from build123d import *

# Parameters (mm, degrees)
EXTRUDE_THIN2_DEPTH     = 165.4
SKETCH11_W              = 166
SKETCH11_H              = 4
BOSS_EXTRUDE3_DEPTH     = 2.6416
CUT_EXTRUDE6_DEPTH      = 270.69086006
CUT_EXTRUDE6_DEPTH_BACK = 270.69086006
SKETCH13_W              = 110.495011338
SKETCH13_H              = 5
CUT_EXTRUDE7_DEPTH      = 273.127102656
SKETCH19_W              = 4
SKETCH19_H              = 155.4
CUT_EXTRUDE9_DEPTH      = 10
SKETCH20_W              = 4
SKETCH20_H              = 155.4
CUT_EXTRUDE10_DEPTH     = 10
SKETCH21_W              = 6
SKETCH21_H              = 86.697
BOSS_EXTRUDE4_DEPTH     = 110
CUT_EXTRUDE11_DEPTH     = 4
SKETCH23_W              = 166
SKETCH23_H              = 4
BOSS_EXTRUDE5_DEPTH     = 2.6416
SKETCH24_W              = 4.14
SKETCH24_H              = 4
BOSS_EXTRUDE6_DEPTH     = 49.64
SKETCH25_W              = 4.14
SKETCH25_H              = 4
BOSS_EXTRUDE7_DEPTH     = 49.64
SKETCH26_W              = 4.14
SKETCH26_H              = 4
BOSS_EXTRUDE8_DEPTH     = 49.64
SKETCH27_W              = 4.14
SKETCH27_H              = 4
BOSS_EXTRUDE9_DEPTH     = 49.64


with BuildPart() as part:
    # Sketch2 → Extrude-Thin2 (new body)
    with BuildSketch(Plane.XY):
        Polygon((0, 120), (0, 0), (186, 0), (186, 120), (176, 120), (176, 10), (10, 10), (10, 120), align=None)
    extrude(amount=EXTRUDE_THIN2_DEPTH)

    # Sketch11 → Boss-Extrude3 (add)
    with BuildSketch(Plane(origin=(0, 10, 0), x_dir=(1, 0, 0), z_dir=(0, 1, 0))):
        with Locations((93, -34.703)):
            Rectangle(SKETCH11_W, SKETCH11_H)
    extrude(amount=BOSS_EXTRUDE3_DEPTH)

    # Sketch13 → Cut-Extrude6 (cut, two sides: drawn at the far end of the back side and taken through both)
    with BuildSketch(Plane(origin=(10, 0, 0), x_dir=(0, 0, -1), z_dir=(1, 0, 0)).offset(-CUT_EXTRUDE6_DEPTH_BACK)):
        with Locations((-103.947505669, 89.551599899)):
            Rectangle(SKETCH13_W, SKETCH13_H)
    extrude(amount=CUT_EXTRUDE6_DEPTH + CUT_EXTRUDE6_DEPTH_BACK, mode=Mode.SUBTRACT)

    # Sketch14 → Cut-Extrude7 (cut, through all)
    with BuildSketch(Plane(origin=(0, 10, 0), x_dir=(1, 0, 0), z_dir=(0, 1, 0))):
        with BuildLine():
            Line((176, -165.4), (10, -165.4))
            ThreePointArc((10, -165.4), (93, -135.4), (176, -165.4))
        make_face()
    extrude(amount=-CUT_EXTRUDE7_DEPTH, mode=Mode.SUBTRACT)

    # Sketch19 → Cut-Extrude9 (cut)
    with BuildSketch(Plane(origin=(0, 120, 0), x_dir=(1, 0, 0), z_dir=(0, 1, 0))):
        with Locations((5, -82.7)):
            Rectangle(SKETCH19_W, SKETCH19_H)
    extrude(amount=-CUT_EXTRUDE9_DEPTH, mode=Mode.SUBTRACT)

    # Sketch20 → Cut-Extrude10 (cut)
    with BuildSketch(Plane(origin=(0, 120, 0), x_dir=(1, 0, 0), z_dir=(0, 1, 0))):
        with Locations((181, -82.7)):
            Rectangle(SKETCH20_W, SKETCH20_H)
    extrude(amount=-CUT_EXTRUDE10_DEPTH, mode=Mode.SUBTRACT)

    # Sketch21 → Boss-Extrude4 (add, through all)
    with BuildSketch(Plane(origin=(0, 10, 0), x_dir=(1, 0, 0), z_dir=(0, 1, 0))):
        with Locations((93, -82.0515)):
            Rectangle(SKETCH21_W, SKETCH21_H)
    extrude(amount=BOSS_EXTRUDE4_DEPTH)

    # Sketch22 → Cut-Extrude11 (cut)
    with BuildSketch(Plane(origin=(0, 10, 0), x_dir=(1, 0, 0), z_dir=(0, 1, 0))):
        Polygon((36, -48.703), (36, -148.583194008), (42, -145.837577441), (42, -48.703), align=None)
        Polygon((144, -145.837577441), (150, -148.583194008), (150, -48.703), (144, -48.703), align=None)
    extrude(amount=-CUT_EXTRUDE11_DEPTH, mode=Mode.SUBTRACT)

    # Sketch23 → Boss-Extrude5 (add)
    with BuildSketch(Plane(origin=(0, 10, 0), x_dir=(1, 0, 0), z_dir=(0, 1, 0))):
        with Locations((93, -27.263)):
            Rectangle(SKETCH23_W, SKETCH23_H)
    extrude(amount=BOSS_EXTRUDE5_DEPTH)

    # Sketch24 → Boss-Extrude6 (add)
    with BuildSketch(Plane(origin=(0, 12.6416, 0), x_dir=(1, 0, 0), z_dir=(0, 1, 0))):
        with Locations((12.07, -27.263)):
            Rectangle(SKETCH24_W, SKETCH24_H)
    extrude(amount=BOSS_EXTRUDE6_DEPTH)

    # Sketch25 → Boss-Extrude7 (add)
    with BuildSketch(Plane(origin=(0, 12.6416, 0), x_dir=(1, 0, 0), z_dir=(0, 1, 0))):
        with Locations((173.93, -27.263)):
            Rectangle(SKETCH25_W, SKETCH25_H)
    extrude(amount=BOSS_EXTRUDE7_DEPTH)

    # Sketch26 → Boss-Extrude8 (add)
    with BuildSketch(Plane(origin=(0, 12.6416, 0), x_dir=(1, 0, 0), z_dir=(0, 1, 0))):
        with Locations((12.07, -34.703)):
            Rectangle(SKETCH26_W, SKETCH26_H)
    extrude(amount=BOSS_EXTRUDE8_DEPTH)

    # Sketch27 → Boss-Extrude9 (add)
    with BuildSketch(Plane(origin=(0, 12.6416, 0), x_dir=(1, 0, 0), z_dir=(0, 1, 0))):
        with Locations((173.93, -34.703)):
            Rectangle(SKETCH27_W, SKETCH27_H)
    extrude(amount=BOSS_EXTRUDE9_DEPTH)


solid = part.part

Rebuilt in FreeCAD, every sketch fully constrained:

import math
import FreeCAD as App
import Part
import Sketcher
from FreeCAD import Vector
Q = App.Units.Quantity

doc = App.newDocument("Part")
body = doc.addObject("PartDesign::Body", "Body")

sketch1 = body.newObject("Sketcher::SketchObject", "Sketch")
sketch1.AttachmentSupport = (doc.getObject("XY_Plane"), [""])
sketch1.MapMode = "FlatFace"
sketch1.addGeometry([
    Part.LineSegment(Vector(0, 120, 0), Vector(0, 0, 0)),
    Part.LineSegment(Vector(0, 0, 0), Vector(186, 0, 0)),
    Part.LineSegment(Vector(186, 0, 0), Vector(186, 120, 0)),
    Part.LineSegment(Vector(186, 120, 0), Vector(176, 120, 0)),
    Part.LineSegment(Vector(176, 120, 0), Vector(176, 10, 0)),
    Part.LineSegment(Vector(176, 10, 0), Vector(10, 10, 0)),
    Part.LineSegment(Vector(10, 10, 0), Vector(10, 120, 0)),
    Part.LineSegment(Vector(10, 120, 0), Vector(0, 120, 0)),
], False)
sketch1.addConstraint([
    Sketcher.Constraint("Coincident", 0, 2, 1, 1),
    Sketcher.Constraint("Coincident", 1, 2, 2, 1),
    Sketcher.Constraint("Coincident", 2, 2, 3, 1),
    Sketcher.Constraint("Coincident", 3, 2, 4, 1),
    Sketcher.Constraint("Coincident", 4, 2, 5, 1),
    Sketcher.Constraint("Coincident", 5, 2, 6, 1),
    Sketcher.Constraint("Coincident", 6, 2, 7, 1),
    Sketcher.Constraint("Coincident", 7, 2, 0, 1),
    Sketcher.Constraint("Vertical", 0),
    Sketcher.Constraint("Horizontal", 1),
    Sketcher.Constraint("Vertical", 2),
    Sketcher.Constraint("Horizontal", 3),
    Sketcher.Constraint("Vertical", 4),
    Sketcher.Constraint("Horizontal", 5),
    Sketcher.Constraint("Vertical", 6),
    Sketcher.Constraint("Horizontal", 7),
    Sketcher.Constraint("Coincident", 0, 2, -1, 1),
    Sketcher.Constraint("Horizontal", 3, 2, 6, 2),
    Sketcher.Constraint("Equal", 3, 7),
    Sketcher.Constraint("DistanceX", 1, 1, 1, 2, Q("186 mm")),
    Sketcher.Constraint("DistanceX", 3, 2, 3, 1, Q("10 mm")),
    Sketcher.Constraint("DistanceY", 0, 2, 0, 1, Q("120 mm")),
    Sketcher.Constraint("DistanceY", 4, 2, 4, 1, Q("110 mm")),
])
pad1 = body.newObject("PartDesign::Pad", "Pad")
pad1.Profile = sketch1
pad1.Length = 165.4

sketch2 = body.newObject("Sketcher::SketchObject", "Sketch001")
sketch2.AttachmentSupport = (doc.getObject("XZ_Plane"), [""])
sketch2.MapMode = "FlatFace"
sketch2.AttachmentOffset = App.Placement(Vector(0, 0, -10), App.Rotation())
sketch2.addGeometry([
    Part.LineSegment(Vector(10, 32.7, 0), Vector(10, 36.7, 0)),
    Part.LineSegment(Vector(10, 36.7, 0), Vector(176, 36.7, 0)),
    Part.LineSegment(Vector(176, 36.7, 0), Vector(176, 32.7, 0)),
    Part.LineSegment(Vector(176, 32.7, 0), Vector(10, 32.7, 0)),
], False)
sketch2.addConstraint([
    Sketcher.Constraint("Coincident", 0, 2, 1, 1),
    Sketcher.Constraint("Coincident", 1, 2, 2, 1),
    Sketcher.Constraint("Coincident", 2, 2, 3, 1),
    Sketcher.Constraint("Coincident", 3, 2, 0, 1),
    Sketcher.Constraint("Vertical", 0),
    Sketcher.Constraint("Horizontal", 1),
    Sketcher.Constraint("Vertical", 2),
    Sketcher.Constraint("Horizontal", 3),
    Sketcher.Constraint("DistanceX", 1, 1, 1, 2, Q("166 mm")),
    Sketcher.Constraint("DistanceY", 0, 1, 0, 2, Q("4 mm")),
    Sketcher.Constraint("DistanceX", -1, 1, 0, 2, Q("10 mm")),
    Sketcher.Constraint("DistanceY", -1, 1, 0, 2, Q("36.703 mm")),
])
pad2 = body.newObject("PartDesign::Pad", "Pad001")
pad2.Profile = sketch2
pad2.Length = 2.6416
pad2.Reversed = True

sketch3 = body.newObject("Sketcher::SketchObject", "Sketch002")
sketch3.AttachmentSupport = (doc.getObject("YZ_Plane"), [""])
sketch3.MapMode = "FlatFace"
sketch3.AttachmentOffset = App.Placement(Vector(0, 0, 10), App.Rotation())
sketch3.addGeometry([
    Part.LineSegment(Vector(92, 159, 0), Vector(87, 159, 0)),
    Part.LineSegment(Vector(87, 159, 0), Vector(87, 49, 0)),
    Part.LineSegment(Vector(87, 49, 0), Vector(92, 49, 0)),
    Part.LineSegment(Vector(92, 49, 0), Vector(92, 159, 0)),
], False)
sketch3.addConstraint([
    Sketcher.Constraint("Coincident", 0, 2, 1, 1),
    Sketcher.Constraint("Coincident", 1, 2, 2, 1),
    Sketcher.Constraint("Coincident", 2, 2, 3, 1),
    Sketcher.Constraint("Coincident", 3, 2, 0, 1),
    Sketcher.Constraint("Horizontal", 0),
    Sketcher.Constraint("Vertical", 1),
    Sketcher.Constraint("Horizontal", 2),
    Sketcher.Constraint("Vertical", 3),
    Sketcher.Constraint("DistanceX", 0, 2, 0, 1, Q("5 mm")),
    Sketcher.Constraint("DistanceY", -1, 1, 1, 2, Q("48.7 mm")),
    Sketcher.Constraint("DistanceY", 1, 2, 1, 1, Q("110.495011 mm")),
    Sketcher.Constraint("DistanceX", -1, 1, 0, 2, Q("87.0516 mm")),
])
pocket1 = body.newObject("PartDesign::Pocket", "Pocket")
pocket1.Profile = sketch3
pocket1.Type = "ThroughAll"
pocket1.Midplane = True

sketch4 = body.newObject("Sketcher::SketchObject", "Sketch003")
sketch4.AttachmentSupport = (doc.getObject("XZ_Plane"), [""])
sketch4.MapMode = "FlatFace"
sketch4.AttachmentOffset = App.Placement(Vector(0, 0, -10), App.Rotation())
sketch4.addGeometry([
    Part.LineSegment(Vector(10, 165, 0), Vector(176, 165, 0)),
    Part.ArcOfCircle(Part.Circle(Vector(93, 265, 0), Vector(0, 0, 1), 130), math.radians(-130), math.radians(-50)),
], False)
sketch4.addConstraint([
    Sketcher.Constraint("Coincident", 0, 1, 1, 1),
    Sketcher.Constraint("Coincident", 1, 2, 0, 2),
    Sketcher.Constraint("Horizontal", 0),
    Sketcher.Constraint("DistanceX", 0, 1, 0, 2, Q("166 mm")),
    Sketcher.Constraint("DistanceX", -1, 1, 1, 3, Q("93 mm")),
    Sketcher.Constraint("DistanceY", -1, 1, 0, 1, Q("165.4 mm")),
    Sketcher.Constraint("Radius", 1, Q("129.816667 mm")),
])
pocket2 = body.newObject("PartDesign::Pocket", "Pocket001")
pocket2.Profile = sketch4
pocket2.Type = "ThroughAll"
pocket2.Reversed = True

sketch5 = body.newObject("Sketcher::SketchObject", "Sketch004")
sketch5.AttachmentSupport = (doc.getObject("XZ_Plane"), [""])
sketch5.MapMode = "FlatFace"
sketch5.AttachmentOffset = App.Placement(Vector(0, 0, -120), App.Rotation())
sketch5.addGeometry([
    Part.LineSegment(Vector(3, 5, 0), Vector(3, 160.4, 0)),
    Part.LineSegment(Vector(3, 160.4, 0), Vector(7, 160.4, 0)),
    Part.LineSegment(Vector(7, 160.4, 0), Vector(7, 5, 0)),
    Part.LineSegment(Vector(7, 5, 0), Vector(3, 5, 0)),
], False)
sketch5.addConstraint([
    Sketcher.Constraint("Coincident", 0, 2, 1, 1),
    Sketcher.Constraint("Coincident", 1, 2, 2, 1),
    Sketcher.Constraint("Coincident", 2, 2, 3, 1),
    Sketcher.Constraint("Coincident", 3, 2, 0, 1),
    Sketcher.Constraint("Vertical", 0),
    Sketcher.Constraint("Horizontal", 1),
    Sketcher.Constraint("Vertical", 2),
    Sketcher.Constraint("Horizontal", 3),
    Sketcher.Constraint("DistanceX", 1, 1, 1, 2, Q("4 mm")),
    Sketcher.Constraint("DistanceY", 0, 1, 0, 2, Q("155.4 mm")),
    Sketcher.Constraint("DistanceX", -1, 1, 0, 2, Q("3 mm")),
    Sketcher.Constraint("DistanceY", -1, 1, 2, 2, Q("5 mm")),
])
pocket3 = body.newObject("PartDesign::Pocket", "Pocket002")
pocket3.Profile = sketch5
pocket3.Length = 10
pocket3.Reversed = True

sketch6 = body.newObject("Sketcher::SketchObject", "Sketch005")
sketch6.AttachmentSupport = (doc.getObject("XZ_Plane"), [""])
sketch6.MapMode = "FlatFace"
sketch6.AttachmentOffset = App.Placement(Vector(0, 0, -120), App.Rotation())
sketch6.addGeometry([
    Part.LineSegment(Vector(179, 5, 0), Vector(179, 160.4, 0)),
    Part.LineSegment(Vector(179, 160.4, 0), Vector(183, 160.4, 0)),
    Part.LineSegment(Vector(183, 160.4, 0), Vector(183, 5, 0)),
    Part.LineSegment(Vector(183, 5, 0), Vector(179, 5, 0)),
], False)
sketch6.addConstraint([
    Sketcher.Constraint("Coincident", 0, 2, 1, 1),
    Sketcher.Constraint("Coincident", 1, 2, 2, 1),
    Sketcher.Constraint("Coincident", 2, 2, 3, 1),
    Sketcher.Constraint("Coincident", 3, 2, 0, 1),
    Sketcher.Constraint("Vertical", 0),
    Sketcher.Constraint("Horizontal", 1),
    Sketcher.Constraint("Vertical", 2),
    Sketcher.Constraint("Horizontal", 3),
    Sketcher.Constraint("DistanceX", 1, 1, 1, 2, Q("4 mm")),
    Sketcher.Constraint("DistanceY", 0, 1, 0, 2, Q("155.4 mm")),
    Sketcher.Constraint("DistanceX", -1, 1, 0, 2, Q("179 mm")),
    Sketcher.Constraint("DistanceY", -1, 1, 2, 2, Q("5 mm")),
])
pocket4 = body.newObject("PartDesign::Pocket", "Pocket003")
pocket4.Profile = sketch6
pocket4.Length = 10
pocket4.Reversed = True

sketch7 = body.newObject("Sketcher::SketchObject", "Sketch006")
sketch7.AttachmentSupport = (doc.getObject("XZ_Plane"), [""])
sketch7.MapMode = "FlatFace"
sketch7.AttachmentOffset = App.Placement(Vector(0, 0, -10), App.Rotation())
sketch7.addGeometry([
    Part.LineSegment(Vector(90, 39, 0), Vector(90, 125, 0)),
    Part.LineSegment(Vector(90, 125, 0), Vector(96, 125, 0)),
    Part.LineSegment(Vector(96, 125, 0), Vector(96, 39, 0)),
    Part.LineSegment(Vector(96, 39, 0), Vector(90, 39, 0)),
], False)
sketch7.addConstraint([
    Sketcher.Constraint("Coincident", 0, 2, 1, 1),
    Sketcher.Constraint("Coincident", 1, 2, 2, 1),
    Sketcher.Constraint("Coincident", 2, 2, 3, 1),
    Sketcher.Constraint("Coincident", 3, 2, 0, 1),
    Sketcher.Constraint("Vertical", 0),
    Sketcher.Constraint("Horizontal", 1),
    Sketcher.Constraint("Vertical", 2),
    Sketcher.Constraint("Horizontal", 3),
    Sketcher.Constraint("DistanceX", 1, 1, 1, 2, Q("6 mm")),
    Sketcher.Constraint("DistanceX", -1, 1, 0, 2, Q("90 mm")),
    Sketcher.Constraint("DistanceY", -1, 1, 0, 2, Q("125.4 mm")),
    Sketcher.Constraint("DistanceY", 0, 1, 0, 2, Q("86.697 mm")),
])
pad3 = body.newObject("PartDesign::Pad", "Pad002")
pad3.Profile = sketch7
pad3.Length = 110
pad3.Reversed = True

sketch8 = body.newObject("Sketcher::SketchObject", "Sketch007")
sketch8.AttachmentSupport = (doc.getObject("XZ_Plane"), [""])
sketch8.MapMode = "FlatFace"
sketch8.AttachmentOffset = App.Placement(Vector(0, 0, -10), App.Rotation())
sketch8.addGeometry([
    Part.LineSegment(Vector(36, 49, 0), Vector(36, 149, 0)),
    Part.LineSegment(Vector(36, 149, 0), Vector(42, 146, 0)),
    Part.LineSegment(Vector(42, 146, 0), Vector(42, 49, 0)),
    Part.LineSegment(Vector(42, 49, 0), Vector(36, 49, 0)),
    Part.LineSegment(Vector(144, 146, 0), Vector(150, 149, 0)),
    Part.LineSegment(Vector(150, 149, 0), Vector(150, 49, 0)),
    Part.LineSegment(Vector(150, 49, 0), Vector(144, 49, 0)),
    Part.LineSegment(Vector(144, 49, 0), Vector(144, 146, 0)),
], False)
sketch8.addConstraint([
    Sketcher.Constraint("Coincident", 0, 2, 1, 1),
    Sketcher.Constraint("Coincident", 1, 2, 2, 1),
    Sketcher.Constraint("Coincident", 2, 2, 3, 1),
    Sketcher.Constraint("Coincident", 3, 2, 0, 1),
    Sketcher.Constraint("Coincident", 4, 2, 5, 1),
    Sketcher.Constraint("Coincident", 5, 2, 6, 1),
    Sketcher.Constraint("Coincident", 6, 2, 7, 1),
    Sketcher.Constraint("Coincident", 7, 2, 4, 1),
    Sketcher.Constraint("Vertical", 0),
    Sketcher.Constraint("Vertical", 2),
    Sketcher.Constraint("Horizontal", 3),
    Sketcher.Constraint("Vertical", 5),
    Sketcher.Constraint("Horizontal", 6),
    Sketcher.Constraint("Vertical", 7),
    Sketcher.Constraint("Horizontal", 0, 2, 4, 2),
    Sketcher.Constraint("Horizontal", 3, 2, 5, 2),
    Sketcher.Constraint("Horizontal", 1, 2, 7, 2),
    Sketcher.Constraint("Equal", 3, 6),
    Sketcher.Constraint("DistanceX", 3, 2, 3, 1, Q("6 mm")),
    Sketcher.Constraint("DistanceX", -1, 1, 0, 2, Q("36 mm")),
    Sketcher.Constraint("DistanceX", -1, 1, 4, 2, Q("150 mm")),
    Sketcher.Constraint("DistanceY", -1, 1, 2, 2, Q("48.703 mm")),
    Sketcher.Constraint("DistanceY", 0, 1, 0, 2, Q("99.880194 mm")),
    Sketcher.Constraint("DistanceY", 2, 2, 2, 1, Q("97.134577 mm")),
])
pocket5 = body.newObject("PartDesign::Pocket", "Pocket004")
pocket5.Profile = sketch8
pocket5.Length = 4
pocket5.Reversed = True

sketch9 = body.newObject("Sketcher::SketchObject", "Sketch008")
sketch9.AttachmentSupport = (doc.getObject("XZ_Plane"), [""])
sketch9.MapMode = "FlatFace"
sketch9.AttachmentOffset = App.Placement(Vector(0, 0, -10), App.Rotation())
sketch9.addGeometry([
    Part.LineSegment(Vector(10, 25.3, 0), Vector(10, 29.3, 0)),
    Part.LineSegment(Vector(10, 29.3, 0), Vector(176, 29.3, 0)),
    Part.LineSegment(Vector(176, 29.3, 0), Vector(176, 25.3, 0)),
    Part.LineSegment(Vector(176, 25.3, 0), Vector(10, 25.3, 0)),
], False)
sketch9.addConstraint([
    Sketcher.Constraint("Coincident", 0, 2, 1, 1),
    Sketcher.Constraint("Coincident", 1, 2, 2, 1),
    Sketcher.Constraint("Coincident", 2, 2, 3, 1),
    Sketcher.Constraint("Coincident", 3, 2, 0, 1),
    Sketcher.Constraint("Vertical", 0),
    Sketcher.Constraint("Horizontal", 1),
    Sketcher.Constraint("Vertical", 2),
    Sketcher.Constraint("Horizontal", 3),
    Sketcher.Constraint("DistanceX", 1, 1, 1, 2, Q("166 mm")),
    Sketcher.Constraint("DistanceY", 0, 1, 0, 2, Q("4 mm")),
    Sketcher.Constraint("DistanceX", -1, 1, 0, 2, Q("10 mm")),
    Sketcher.Constraint("DistanceY", -1, 1, 0, 2, Q("29.263 mm")),
])
pad4 = body.newObject("PartDesign::Pad", "Pad003")
pad4.Profile = sketch9
pad4.Length = 2.6416
pad4.Reversed = True

sketch10 = body.newObject("Sketcher::SketchObject", "Sketch009")
sketch10.AttachmentSupport = (doc.getObject("XZ_Plane"), [""])
sketch10.MapMode = "FlatFace"
sketch10.AttachmentOffset = App.Placement(Vector(0, 0, -12.6416), App.Rotation())
sketch10.addGeometry([
    Part.LineSegment(Vector(10, 25.3, 0), Vector(10, 29.3, 0)),
    Part.LineSegment(Vector(10, 29.3, 0), Vector(14.1, 29.3, 0)),
    Part.LineSegment(Vector(14.1, 29.3, 0), Vector(14.1, 25.3, 0)),
    Part.LineSegment(Vector(14.1, 25.3, 0), Vector(10, 25.3, 0)),
], False)
sketch10.addConstraint([
    Sketcher.Constraint("Coincident", 0, 2, 1, 1),
    Sketcher.Constraint("Coincident", 1, 2, 2, 1),
    Sketcher.Constraint("Coincident", 2, 2, 3, 1),
    Sketcher.Constraint("Coincident", 3, 2, 0, 1),
    Sketcher.Constraint("Vertical", 0),
    Sketcher.Constraint("Horizontal", 1),
    Sketcher.Constraint("Vertical", 2),
    Sketcher.Constraint("Horizontal", 3),
    Sketcher.Constraint("DistanceY", 0, 1, 0, 2, Q("4 mm")),
    Sketcher.Constraint("DistanceX", -1, 1, 0, 2, Q("10 mm")),
    Sketcher.Constraint("DistanceX", 1, 1, 1, 2, Q("4.14 mm")),
    Sketcher.Constraint("DistanceY", -1, 1, 0, 2, Q("29.263 mm")),
])
pad5 = body.newObject("PartDesign::Pad", "Pad004")
pad5.Profile = sketch10
pad5.Length = 49.64
pad5.Reversed = True

sketch11 = body.newObject("Sketcher::SketchObject", "Sketch010")
sketch11.AttachmentSupport = (doc.getObject("XZ_Plane"), [""])
sketch11.MapMode = "FlatFace"
sketch11.AttachmentOffset = App.Placement(Vector(0, 0, -12.6416), App.Rotation())
sketch11.addGeometry([
    Part.LineSegment(Vector(171.9, 25.3, 0), Vector(171.9, 29.3, 0)),
    Part.LineSegment(Vector(171.9, 29.3, 0), Vector(176, 29.3, 0)),
    Part.LineSegment(Vector(176, 29.3, 0), Vector(176, 25.3, 0)),
    Part.LineSegment(Vector(176, 25.3, 0), Vector(171.9, 25.3, 0)),
], False)
sketch11.addConstraint([
    Sketcher.Constraint("Coincident", 0, 2, 1, 1),
    Sketcher.Constraint("Coincident", 1, 2, 2, 1),
    Sketcher.Constraint("Coincident", 2, 2, 3, 1),
    Sketcher.Constraint("Coincident", 3, 2, 0, 1),
    Sketcher.Constraint("Vertical", 0),
    Sketcher.Constraint("Horizontal", 1),
    Sketcher.Constraint("Vertical", 2),
    Sketcher.Constraint("Horizontal", 3),
    Sketcher.Constraint("DistanceY", 0, 1, 0, 2, Q("4 mm")),
    Sketcher.Constraint("DistanceX", -1, 1, 1, 2, Q("176 mm")),
    Sketcher.Constraint("DistanceX", 1, 1, 1, 2, Q("4.14 mm")),
    Sketcher.Constraint("DistanceY", -1, 1, 0, 2, Q("29.263 mm")),
])
pad6 = body.newObject("PartDesign::Pad", "Pad005")
pad6.Profile = sketch11
pad6.Length = 49.64
pad6.Reversed = True

sketch12 = body.newObject("Sketcher::SketchObject", "Sketch011")
sketch12.AttachmentSupport = (doc.getObject("XZ_Plane"), [""])
sketch12.MapMode = "FlatFace"
sketch12.AttachmentOffset = App.Placement(Vector(0, 0, -12.6416), App.Rotation())
sketch12.addGeometry([
    Part.LineSegment(Vector(10, 32.7, 0), Vector(10, 36.7, 0)),
    Part.LineSegment(Vector(10, 36.7, 0), Vector(14.1, 36.7, 0)),
    Part.LineSegment(Vector(14.1, 36.7, 0), Vector(14.1, 32.7, 0)),
    Part.LineSegment(Vector(14.1, 32.7, 0), Vector(10, 32.7, 0)),
], False)
sketch12.addConstraint([
    Sketcher.Constraint("Coincident", 0, 2, 1, 1),
    Sketcher.Constraint("Coincident", 1, 2, 2, 1),
    Sketcher.Constraint("Coincident", 2, 2, 3, 1),
    Sketcher.Constraint("Coincident", 3, 2, 0, 1),
    Sketcher.Constraint("Vertical", 0),
    Sketcher.Constraint("Horizontal", 1),
    Sketcher.Constraint("Vertical", 2),
    Sketcher.Constraint("Horizontal", 3),
    Sketcher.Constraint("DistanceY", 0, 1, 0, 2, Q("4 mm")),
    Sketcher.Constraint("DistanceX", -1, 1, 0, 2, Q("10 mm")),
    Sketcher.Constraint("DistanceX", 1, 1, 1, 2, Q("4.14 mm")),
    Sketcher.Constraint("DistanceY", -1, 1, 0, 2, Q("36.703 mm")),
])
pad7 = body.newObject("PartDesign::Pad", "Pad006")
pad7.Profile = sketch12
pad7.Length = 49.64
pad7.Reversed = True

sketch13 = body.newObject("Sketcher::SketchObject", "Sketch012")
sketch13.AttachmentSupport = (doc.getObject("XZ_Plane"), [""])
sketch13.MapMode = "FlatFace"
sketch13.AttachmentOffset = App.Placement(Vector(0, 0, -12.6416), App.Rotation())
sketch13.addGeometry([
    Part.LineSegment(Vector(171.9, 32.7, 0), Vector(171.9, 36.7, 0)),
    Part.LineSegment(Vector(171.9, 36.7, 0), Vector(176, 36.7, 0)),
    Part.LineSegment(Vector(176, 36.7, 0), Vector(176, 32.7, 0)),
    Part.LineSegment(Vector(176, 32.7, 0), Vector(171.9, 32.7, 0)),
], False)
sketch13.addConstraint([
    Sketcher.Constraint("Coincident", 0, 2, 1, 1),
    Sketcher.Constraint("Coincident", 1, 2, 2, 1),
    Sketcher.Constraint("Coincident", 2, 2, 3, 1),
    Sketcher.Constraint("Coincident", 3, 2, 0, 1),
    Sketcher.Constraint("Vertical", 0),
    Sketcher.Constraint("Horizontal", 1),
    Sketcher.Constraint("Vertical", 2),
    Sketcher.Constraint("Horizontal", 3),
    Sketcher.Constraint("DistanceY", 0, 1, 0, 2, Q("4 mm")),
    Sketcher.Constraint("DistanceX", -1, 1, 1, 2, Q("176 mm")),
    Sketcher.Constraint("DistanceX", 1, 1, 1, 2, Q("4.14 mm")),
    Sketcher.Constraint("DistanceY", -1, 1, 0, 2, Q("36.703 mm")),
])
pad8 = body.newObject("PartDesign::Pad", "Pad007")
pad8.Profile = sketch13
pad8.Length = 49.64
pad8.Reversed = True

doc.recompute()
